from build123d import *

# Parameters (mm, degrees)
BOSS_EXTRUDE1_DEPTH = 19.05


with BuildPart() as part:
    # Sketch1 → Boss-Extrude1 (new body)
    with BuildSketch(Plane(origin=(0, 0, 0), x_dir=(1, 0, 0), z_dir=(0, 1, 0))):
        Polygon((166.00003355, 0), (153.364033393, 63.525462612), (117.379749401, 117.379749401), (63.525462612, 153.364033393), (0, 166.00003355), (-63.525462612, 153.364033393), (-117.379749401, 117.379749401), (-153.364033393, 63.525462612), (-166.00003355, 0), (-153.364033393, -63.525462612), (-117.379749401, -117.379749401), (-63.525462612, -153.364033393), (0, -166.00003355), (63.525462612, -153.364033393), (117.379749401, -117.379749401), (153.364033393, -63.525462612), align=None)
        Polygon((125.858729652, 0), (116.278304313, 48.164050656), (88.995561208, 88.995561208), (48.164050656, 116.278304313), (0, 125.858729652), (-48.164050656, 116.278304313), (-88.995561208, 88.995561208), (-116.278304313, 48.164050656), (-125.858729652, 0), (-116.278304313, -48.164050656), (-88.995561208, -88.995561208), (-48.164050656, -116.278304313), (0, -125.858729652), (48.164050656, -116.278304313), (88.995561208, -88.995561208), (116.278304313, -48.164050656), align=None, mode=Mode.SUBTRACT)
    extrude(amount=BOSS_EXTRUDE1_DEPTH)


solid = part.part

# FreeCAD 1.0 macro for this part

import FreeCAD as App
import Part
import Sketcher

V = App.Vector
Q = App.Units.Quantity


def add_polygon(sketch, points):
    """Adds a closed chain of lines whose ends are joined by coincident constraints."""
    first, n = sketch.GeometryCount, len(points)
    for a, b in zip(points, points[1:] + points[:1]):
        sketch.addGeometry(Part.LineSegment(App.Vector(*a, 0), App.Vector(*b, 0)), False)
    for i in range(n):
        sketch.addConstraint(Sketcher.Constraint("Coincident", first + i, 2, first + (i + 1) % n, 1))

doc = App.newDocument("Part")
body = doc.addObject("PartDesign::Body", "Body")

# Sketch on XZ plane
sketch1 = doc.addObject("Sketcher::SketchObject", "Sketch")
body.addObject(sketch1)
sketch1.AttachmentSupport = (doc.XZ_Plane, [""])
sketch1.MapMode = "FlatFace"
add_polygon(sketch1, [(166, 0), (153, -64), (117, -117), (64, -153), (0, -166), (-64, -153), (-117, -117), (-153, -64), (-166, 0), (-153, 64), (-117, 117), (-64, 153), (0, 166), (64, 153), (117, 117), (153, 64)])  # lines 0-15
add_polygon(sketch1, [(116, -48), (126, 0), (116, 48), (89, 89), (48, 116), (0, 126), (-48, 116), (-89, 89), (-116, 48), (-126, 0), (-116, -48), (-89, -89), (-48, -116), (0, -126), (48, -116), (89, -89)])  # lines 16-31
sketch1.addConstraint([
    Sketcher.Constraint("Symmetric", 0, 2, 8, 2, -1, 1),
    Sketcher.Constraint("Symmetric", 1, 2, 9, 2, -1, 1),
    Sketcher.Constraint("Symmetric", 2, 2, 10, 2, -1, 1),
    Sketcher.Constraint("Symmetric", 3, 2, 11, 2, -1, 1),
    Sketcher.Constraint("Symmetric", 4, 2, 12, 2, -1, 1),
    Sketcher.Constraint("Symmetric", 5, 2, 13, 2, -1, 1),
    Sketcher.Constraint("Symmetric", 6, 2, 14, 2, -1, 1),
    Sketcher.Constraint("Symmetric", 7, 2, 15, 2, -1, 1),
    Sketcher.Constraint("Symmetric", 16, 2, 24, 2, -1, 1),
    Sketcher.Constraint("Symmetric", 17, 2, 25, 2, -1, 1),
    Sketcher.Constraint("Symmetric", 18, 2, 26, 2, -1, 1),
    Sketcher.Constraint("Symmetric", 19, 2, 27, 2, -1, 1),
    Sketcher.Constraint("Symmetric", 20, 2, 28, 2, -1, 1),
    Sketcher.Constraint("Symmetric", 21, 2, 29, 2, -1, 1),
    Sketcher.Constraint("Symmetric", 22, 2, 30, 2, -1, 1),
    Sketcher.Constraint("Symmetric", 23, 2, 31, 2, -1, 1),
    Sketcher.Constraint("Symmetric", 2, 2, 4, 2, -2),
    Sketcher.Constraint("Symmetric", 1, 2, 5, 2, -2),
    Sketcher.Constraint("Symmetric", 0, 2, 6, 2, -2),
    Sketcher.Constraint("Symmetric", 19, 2, 21, 2, -2),
    Sketcher.Constraint("Symmetric", 18, 2, 22, 2, -2),
    Sketcher.Constraint("Symmetric", 17, 2, 23, 2, -2),
    Sketcher.Constraint("PointOnObject", 3, 2, -2),
    Sketcher.Constraint("PointOnObject", 7, 2, -1),
    Sketcher.Constraint("PointOnObject", 16, 2, -1),
    Sketcher.Constraint("PointOnObject", 20, 2, -2),
    Sketcher.Constraint("Perpendicular", 0, 4),
    Sketcher.Constraint("Perpendicular", 1, 5),
    Sketcher.Constraint("Perpendicular", 12, 16),
    Sketcher.Constraint("Parallel", 14, 18),
    Sketcher.Constraint("Parallel", 13, 19),
    Sketcher.Constraint("Perpendicular", 16, 20),
    Sketcher.Constraint("Equal", 0, 1),
    Sketcher.Constraint("Equal", 1, 2),
    Sketcher.Constraint("Equal", 2, 3),
    Sketcher.Constraint("Equal", 17, 18),
    Sketcher.Constraint("Equal", 18, 19),
    Sketcher.Constraint("Equal", 19, 20),
    Sketcher.Constraint("Distance", 0, Q("2.55 in")),
    Sketcher.Constraint("Angle", 0, Q("-101.25 deg")),
    Sketcher.Constraint("Angle", 1, Q("-123.75 deg")),
    Sketcher.Constraint("DistanceY", 17, 2, 13, 2, 69.215699),
])
pad1 = doc.addObject("PartDesign::Pad", "Pad")
body.addObject(pad1)
pad1.Profile = sketch1
pad1.Length = Q("0.75 in")
pad1.Reversed = True

doc.recompute()
